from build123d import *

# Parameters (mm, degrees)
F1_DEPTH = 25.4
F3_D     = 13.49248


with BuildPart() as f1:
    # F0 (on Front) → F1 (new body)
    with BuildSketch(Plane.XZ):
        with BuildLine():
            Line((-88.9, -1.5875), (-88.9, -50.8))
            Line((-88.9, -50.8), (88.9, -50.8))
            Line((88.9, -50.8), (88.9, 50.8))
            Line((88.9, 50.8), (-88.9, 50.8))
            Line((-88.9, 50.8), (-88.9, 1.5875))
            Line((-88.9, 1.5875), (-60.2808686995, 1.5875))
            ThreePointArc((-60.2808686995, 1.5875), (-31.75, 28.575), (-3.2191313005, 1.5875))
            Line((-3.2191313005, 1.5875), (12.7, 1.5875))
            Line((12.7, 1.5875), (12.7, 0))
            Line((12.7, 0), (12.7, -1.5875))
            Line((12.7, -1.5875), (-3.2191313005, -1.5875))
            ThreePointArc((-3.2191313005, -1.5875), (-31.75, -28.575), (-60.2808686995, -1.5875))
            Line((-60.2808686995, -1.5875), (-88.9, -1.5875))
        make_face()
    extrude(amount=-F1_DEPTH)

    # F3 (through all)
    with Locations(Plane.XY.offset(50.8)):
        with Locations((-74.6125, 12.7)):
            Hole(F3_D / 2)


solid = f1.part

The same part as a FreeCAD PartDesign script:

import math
import FreeCAD as App
import Part
import Sketcher

V = App.Vector
Q = App.Units.Quantity

doc = App.newDocument("Part")
body = doc.addObject("PartDesign::Body", "Body")

# Sketch on XZ plane
sketch1 = body.newObject("Sketcher::SketchObject", "Sketch")
sketch1.AttachmentSupport = (doc.getObject("XZ_Plane"), [""])
sketch1.MapMode = "FlatFace"
sketch1.addGeometry([
    Part.LineSegment(V(-88.9, -1.6, 0), V(-88.9, -50.8, 0)),  # 0
    Part.LineSegment(V(-88.9, -50.8, 0), V(88.9, -50.8, 0)),  # 1
    Part.LineSegment(V(88.9, -50.8, 0), V(88.9, 50.8, 0)),  # 2
    Part.LineSegment(V(88.9, 50.8, 0), V(-88.9, 50.8, 0)),  # 3
    Part.LineSegment(V(-88.9, 50.8, 0), V(-88.9, 1.6, 0)),  # 4
    Part.LineSegment(V(-88.9, 1.6, 0), V(-60.3, 1.6, 0)),  # 5
    Part.ArcOfCircle(Part.Circle(V(-31.8, 0, 0), V(0, 0, 1), 28.6), math.radians(3), math.radians(177)),  # 6
    Part.LineSegment(V(-3.2, 1.6, 0), V(12.7, 1.6, 0)),  # 7
    Part.LineSegment(V(12.7, 1.6, 0), V(12.7, -1.6, 0)),  # 8
    Part.LineSegment(V(12.7, -1.6, 0), V(-3.2, -1.6, 0)),  # 9
    Part.ArcOfCircle(Part.Circle(V(-31.8, 0, 0), V(0, 0, 1), 28.6), math.radians(-177), math.radians(-3)),  # 10
    Part.LineSegment(V(-60.3, -1.6, 0), V(-88.9, -1.6, 0)),  # 11
], False)
sketch1.addConstraint([
    Sketcher.Constraint("Coincident", 0, 2, 1, 1),
    Sketcher.Constraint("Coincident", 1, 2, 2, 1),
    Sketcher.Constraint("Coincident", 2, 2, 3, 1),
    Sketcher.Constraint("Coincident", 3, 2, 4, 1),
    Sketcher.Constraint("Coincident", 4, 2, 5, 1),
    Sketcher.Constraint("Coincident", 5, 2, 6, 2),
    Sketcher.Constraint("Coincident", 6, 1, 7, 1),
    Sketcher.Constraint("Coincident", 7, 2, 8, 1),
    Sketcher.Constraint("Coincident", 8, 2, 9, 1),
    Sketcher.Constraint("Coincident", 9, 2, 10, 2),
    Sketcher.Constraint("Coincident", 10, 1, 11, 1),
    Sketcher.Constraint("Coincident", 11, 2, 0, 1),
    Sketcher.Constraint("Vertical", 0),
    Sketcher.Constraint("Horizontal", 1),
    Sketcher.Constraint("Vertical", 2),
    Sketcher.Constraint("Horizontal", 3),
    Sketcher.Constraint("Vertical", 4),
    Sketcher.Constraint("Horizontal", 5),
    Sketcher.Constraint("Horizontal", 7),
    Sketcher.Constraint("Vertical", 8),
    Sketcher.Constraint("Horizontal", 9),
    Sketcher.Constraint("Horizontal", 11),
    Sketcher.Constraint("Coincident", 10, 3, 6, 3),
    Sketcher.Constraint("Equal", 6, 10),
    Sketcher.Constraint("Symmetric", 0, 2, 2, 2, -1, 1),
    Sketcher.Constraint("Symmetric", 6, 1, 9, 2, -1),
    Sketcher.Constraint("Symmetric", 4, 2, 11, 2, -1),
    Sketcher.Constraint("Horizontal", 5, 2, 6, 1),
    Sketcher.Constraint("DistanceX", 1, 1, 1, 2, Q("7 in")),
    Sketcher.Constraint("DistanceY", 2, 1, 2, 2, Q("4 in")),
    Sketcher.Constraint("Radius", 6, Q("1.125 in")),
    Sketcher.Constraint("DistanceX", 7, 2, 2, 2, Q("3 in")),
    Sketcher.Constraint("DistanceY", 0, 2, 0, 1, Q("1.9375 in")),
    Sketcher.Constraint("DistanceX", 6, 3, -1, 1, Q("1.25 in")),
])
pad1 = body.newObject("PartDesign::Pad", "Pad")
pad1.Profile = sketch1
pad1.Length = Q("1 in")
pad1.Reversed = True

# Sketch on XY plane
sketch2 = body.newObject("Sketcher::SketchObject", "Sketch001")
sketch2.AttachmentSupport = (doc.getObject("XY_Plane"), [""])
sketch2.MapMode = "FlatFace"
sketch2.AttachmentOffset = App.Placement(V(0, 0, 2 * 25.4), App.Rotation())
sketch2.addGeometry(Part.Circle(V(-75, 13, 0), V(0, 0, 1), 7), False)
sketch2.addConstraint([
    Sketcher.Constraint("Diameter", 0, Q("0.5312 in")),
    Sketcher.Constraint("DistanceY", -1, 1, 0, 3, Q("0.5 in")),
    Sketcher.Constraint("DistanceX", 0, 3, -1, 1, Q("2.9375 in")),
])
doc.recompute()
hole = body.newObject("PartDesign::Hole", "Hole")
hole.Profile = sketch2
hole.ThreadType = "None"
hole.Diameter = Q("0.5312 in")
hole.DepthType = "ThroughAll"

doc.recompute()
